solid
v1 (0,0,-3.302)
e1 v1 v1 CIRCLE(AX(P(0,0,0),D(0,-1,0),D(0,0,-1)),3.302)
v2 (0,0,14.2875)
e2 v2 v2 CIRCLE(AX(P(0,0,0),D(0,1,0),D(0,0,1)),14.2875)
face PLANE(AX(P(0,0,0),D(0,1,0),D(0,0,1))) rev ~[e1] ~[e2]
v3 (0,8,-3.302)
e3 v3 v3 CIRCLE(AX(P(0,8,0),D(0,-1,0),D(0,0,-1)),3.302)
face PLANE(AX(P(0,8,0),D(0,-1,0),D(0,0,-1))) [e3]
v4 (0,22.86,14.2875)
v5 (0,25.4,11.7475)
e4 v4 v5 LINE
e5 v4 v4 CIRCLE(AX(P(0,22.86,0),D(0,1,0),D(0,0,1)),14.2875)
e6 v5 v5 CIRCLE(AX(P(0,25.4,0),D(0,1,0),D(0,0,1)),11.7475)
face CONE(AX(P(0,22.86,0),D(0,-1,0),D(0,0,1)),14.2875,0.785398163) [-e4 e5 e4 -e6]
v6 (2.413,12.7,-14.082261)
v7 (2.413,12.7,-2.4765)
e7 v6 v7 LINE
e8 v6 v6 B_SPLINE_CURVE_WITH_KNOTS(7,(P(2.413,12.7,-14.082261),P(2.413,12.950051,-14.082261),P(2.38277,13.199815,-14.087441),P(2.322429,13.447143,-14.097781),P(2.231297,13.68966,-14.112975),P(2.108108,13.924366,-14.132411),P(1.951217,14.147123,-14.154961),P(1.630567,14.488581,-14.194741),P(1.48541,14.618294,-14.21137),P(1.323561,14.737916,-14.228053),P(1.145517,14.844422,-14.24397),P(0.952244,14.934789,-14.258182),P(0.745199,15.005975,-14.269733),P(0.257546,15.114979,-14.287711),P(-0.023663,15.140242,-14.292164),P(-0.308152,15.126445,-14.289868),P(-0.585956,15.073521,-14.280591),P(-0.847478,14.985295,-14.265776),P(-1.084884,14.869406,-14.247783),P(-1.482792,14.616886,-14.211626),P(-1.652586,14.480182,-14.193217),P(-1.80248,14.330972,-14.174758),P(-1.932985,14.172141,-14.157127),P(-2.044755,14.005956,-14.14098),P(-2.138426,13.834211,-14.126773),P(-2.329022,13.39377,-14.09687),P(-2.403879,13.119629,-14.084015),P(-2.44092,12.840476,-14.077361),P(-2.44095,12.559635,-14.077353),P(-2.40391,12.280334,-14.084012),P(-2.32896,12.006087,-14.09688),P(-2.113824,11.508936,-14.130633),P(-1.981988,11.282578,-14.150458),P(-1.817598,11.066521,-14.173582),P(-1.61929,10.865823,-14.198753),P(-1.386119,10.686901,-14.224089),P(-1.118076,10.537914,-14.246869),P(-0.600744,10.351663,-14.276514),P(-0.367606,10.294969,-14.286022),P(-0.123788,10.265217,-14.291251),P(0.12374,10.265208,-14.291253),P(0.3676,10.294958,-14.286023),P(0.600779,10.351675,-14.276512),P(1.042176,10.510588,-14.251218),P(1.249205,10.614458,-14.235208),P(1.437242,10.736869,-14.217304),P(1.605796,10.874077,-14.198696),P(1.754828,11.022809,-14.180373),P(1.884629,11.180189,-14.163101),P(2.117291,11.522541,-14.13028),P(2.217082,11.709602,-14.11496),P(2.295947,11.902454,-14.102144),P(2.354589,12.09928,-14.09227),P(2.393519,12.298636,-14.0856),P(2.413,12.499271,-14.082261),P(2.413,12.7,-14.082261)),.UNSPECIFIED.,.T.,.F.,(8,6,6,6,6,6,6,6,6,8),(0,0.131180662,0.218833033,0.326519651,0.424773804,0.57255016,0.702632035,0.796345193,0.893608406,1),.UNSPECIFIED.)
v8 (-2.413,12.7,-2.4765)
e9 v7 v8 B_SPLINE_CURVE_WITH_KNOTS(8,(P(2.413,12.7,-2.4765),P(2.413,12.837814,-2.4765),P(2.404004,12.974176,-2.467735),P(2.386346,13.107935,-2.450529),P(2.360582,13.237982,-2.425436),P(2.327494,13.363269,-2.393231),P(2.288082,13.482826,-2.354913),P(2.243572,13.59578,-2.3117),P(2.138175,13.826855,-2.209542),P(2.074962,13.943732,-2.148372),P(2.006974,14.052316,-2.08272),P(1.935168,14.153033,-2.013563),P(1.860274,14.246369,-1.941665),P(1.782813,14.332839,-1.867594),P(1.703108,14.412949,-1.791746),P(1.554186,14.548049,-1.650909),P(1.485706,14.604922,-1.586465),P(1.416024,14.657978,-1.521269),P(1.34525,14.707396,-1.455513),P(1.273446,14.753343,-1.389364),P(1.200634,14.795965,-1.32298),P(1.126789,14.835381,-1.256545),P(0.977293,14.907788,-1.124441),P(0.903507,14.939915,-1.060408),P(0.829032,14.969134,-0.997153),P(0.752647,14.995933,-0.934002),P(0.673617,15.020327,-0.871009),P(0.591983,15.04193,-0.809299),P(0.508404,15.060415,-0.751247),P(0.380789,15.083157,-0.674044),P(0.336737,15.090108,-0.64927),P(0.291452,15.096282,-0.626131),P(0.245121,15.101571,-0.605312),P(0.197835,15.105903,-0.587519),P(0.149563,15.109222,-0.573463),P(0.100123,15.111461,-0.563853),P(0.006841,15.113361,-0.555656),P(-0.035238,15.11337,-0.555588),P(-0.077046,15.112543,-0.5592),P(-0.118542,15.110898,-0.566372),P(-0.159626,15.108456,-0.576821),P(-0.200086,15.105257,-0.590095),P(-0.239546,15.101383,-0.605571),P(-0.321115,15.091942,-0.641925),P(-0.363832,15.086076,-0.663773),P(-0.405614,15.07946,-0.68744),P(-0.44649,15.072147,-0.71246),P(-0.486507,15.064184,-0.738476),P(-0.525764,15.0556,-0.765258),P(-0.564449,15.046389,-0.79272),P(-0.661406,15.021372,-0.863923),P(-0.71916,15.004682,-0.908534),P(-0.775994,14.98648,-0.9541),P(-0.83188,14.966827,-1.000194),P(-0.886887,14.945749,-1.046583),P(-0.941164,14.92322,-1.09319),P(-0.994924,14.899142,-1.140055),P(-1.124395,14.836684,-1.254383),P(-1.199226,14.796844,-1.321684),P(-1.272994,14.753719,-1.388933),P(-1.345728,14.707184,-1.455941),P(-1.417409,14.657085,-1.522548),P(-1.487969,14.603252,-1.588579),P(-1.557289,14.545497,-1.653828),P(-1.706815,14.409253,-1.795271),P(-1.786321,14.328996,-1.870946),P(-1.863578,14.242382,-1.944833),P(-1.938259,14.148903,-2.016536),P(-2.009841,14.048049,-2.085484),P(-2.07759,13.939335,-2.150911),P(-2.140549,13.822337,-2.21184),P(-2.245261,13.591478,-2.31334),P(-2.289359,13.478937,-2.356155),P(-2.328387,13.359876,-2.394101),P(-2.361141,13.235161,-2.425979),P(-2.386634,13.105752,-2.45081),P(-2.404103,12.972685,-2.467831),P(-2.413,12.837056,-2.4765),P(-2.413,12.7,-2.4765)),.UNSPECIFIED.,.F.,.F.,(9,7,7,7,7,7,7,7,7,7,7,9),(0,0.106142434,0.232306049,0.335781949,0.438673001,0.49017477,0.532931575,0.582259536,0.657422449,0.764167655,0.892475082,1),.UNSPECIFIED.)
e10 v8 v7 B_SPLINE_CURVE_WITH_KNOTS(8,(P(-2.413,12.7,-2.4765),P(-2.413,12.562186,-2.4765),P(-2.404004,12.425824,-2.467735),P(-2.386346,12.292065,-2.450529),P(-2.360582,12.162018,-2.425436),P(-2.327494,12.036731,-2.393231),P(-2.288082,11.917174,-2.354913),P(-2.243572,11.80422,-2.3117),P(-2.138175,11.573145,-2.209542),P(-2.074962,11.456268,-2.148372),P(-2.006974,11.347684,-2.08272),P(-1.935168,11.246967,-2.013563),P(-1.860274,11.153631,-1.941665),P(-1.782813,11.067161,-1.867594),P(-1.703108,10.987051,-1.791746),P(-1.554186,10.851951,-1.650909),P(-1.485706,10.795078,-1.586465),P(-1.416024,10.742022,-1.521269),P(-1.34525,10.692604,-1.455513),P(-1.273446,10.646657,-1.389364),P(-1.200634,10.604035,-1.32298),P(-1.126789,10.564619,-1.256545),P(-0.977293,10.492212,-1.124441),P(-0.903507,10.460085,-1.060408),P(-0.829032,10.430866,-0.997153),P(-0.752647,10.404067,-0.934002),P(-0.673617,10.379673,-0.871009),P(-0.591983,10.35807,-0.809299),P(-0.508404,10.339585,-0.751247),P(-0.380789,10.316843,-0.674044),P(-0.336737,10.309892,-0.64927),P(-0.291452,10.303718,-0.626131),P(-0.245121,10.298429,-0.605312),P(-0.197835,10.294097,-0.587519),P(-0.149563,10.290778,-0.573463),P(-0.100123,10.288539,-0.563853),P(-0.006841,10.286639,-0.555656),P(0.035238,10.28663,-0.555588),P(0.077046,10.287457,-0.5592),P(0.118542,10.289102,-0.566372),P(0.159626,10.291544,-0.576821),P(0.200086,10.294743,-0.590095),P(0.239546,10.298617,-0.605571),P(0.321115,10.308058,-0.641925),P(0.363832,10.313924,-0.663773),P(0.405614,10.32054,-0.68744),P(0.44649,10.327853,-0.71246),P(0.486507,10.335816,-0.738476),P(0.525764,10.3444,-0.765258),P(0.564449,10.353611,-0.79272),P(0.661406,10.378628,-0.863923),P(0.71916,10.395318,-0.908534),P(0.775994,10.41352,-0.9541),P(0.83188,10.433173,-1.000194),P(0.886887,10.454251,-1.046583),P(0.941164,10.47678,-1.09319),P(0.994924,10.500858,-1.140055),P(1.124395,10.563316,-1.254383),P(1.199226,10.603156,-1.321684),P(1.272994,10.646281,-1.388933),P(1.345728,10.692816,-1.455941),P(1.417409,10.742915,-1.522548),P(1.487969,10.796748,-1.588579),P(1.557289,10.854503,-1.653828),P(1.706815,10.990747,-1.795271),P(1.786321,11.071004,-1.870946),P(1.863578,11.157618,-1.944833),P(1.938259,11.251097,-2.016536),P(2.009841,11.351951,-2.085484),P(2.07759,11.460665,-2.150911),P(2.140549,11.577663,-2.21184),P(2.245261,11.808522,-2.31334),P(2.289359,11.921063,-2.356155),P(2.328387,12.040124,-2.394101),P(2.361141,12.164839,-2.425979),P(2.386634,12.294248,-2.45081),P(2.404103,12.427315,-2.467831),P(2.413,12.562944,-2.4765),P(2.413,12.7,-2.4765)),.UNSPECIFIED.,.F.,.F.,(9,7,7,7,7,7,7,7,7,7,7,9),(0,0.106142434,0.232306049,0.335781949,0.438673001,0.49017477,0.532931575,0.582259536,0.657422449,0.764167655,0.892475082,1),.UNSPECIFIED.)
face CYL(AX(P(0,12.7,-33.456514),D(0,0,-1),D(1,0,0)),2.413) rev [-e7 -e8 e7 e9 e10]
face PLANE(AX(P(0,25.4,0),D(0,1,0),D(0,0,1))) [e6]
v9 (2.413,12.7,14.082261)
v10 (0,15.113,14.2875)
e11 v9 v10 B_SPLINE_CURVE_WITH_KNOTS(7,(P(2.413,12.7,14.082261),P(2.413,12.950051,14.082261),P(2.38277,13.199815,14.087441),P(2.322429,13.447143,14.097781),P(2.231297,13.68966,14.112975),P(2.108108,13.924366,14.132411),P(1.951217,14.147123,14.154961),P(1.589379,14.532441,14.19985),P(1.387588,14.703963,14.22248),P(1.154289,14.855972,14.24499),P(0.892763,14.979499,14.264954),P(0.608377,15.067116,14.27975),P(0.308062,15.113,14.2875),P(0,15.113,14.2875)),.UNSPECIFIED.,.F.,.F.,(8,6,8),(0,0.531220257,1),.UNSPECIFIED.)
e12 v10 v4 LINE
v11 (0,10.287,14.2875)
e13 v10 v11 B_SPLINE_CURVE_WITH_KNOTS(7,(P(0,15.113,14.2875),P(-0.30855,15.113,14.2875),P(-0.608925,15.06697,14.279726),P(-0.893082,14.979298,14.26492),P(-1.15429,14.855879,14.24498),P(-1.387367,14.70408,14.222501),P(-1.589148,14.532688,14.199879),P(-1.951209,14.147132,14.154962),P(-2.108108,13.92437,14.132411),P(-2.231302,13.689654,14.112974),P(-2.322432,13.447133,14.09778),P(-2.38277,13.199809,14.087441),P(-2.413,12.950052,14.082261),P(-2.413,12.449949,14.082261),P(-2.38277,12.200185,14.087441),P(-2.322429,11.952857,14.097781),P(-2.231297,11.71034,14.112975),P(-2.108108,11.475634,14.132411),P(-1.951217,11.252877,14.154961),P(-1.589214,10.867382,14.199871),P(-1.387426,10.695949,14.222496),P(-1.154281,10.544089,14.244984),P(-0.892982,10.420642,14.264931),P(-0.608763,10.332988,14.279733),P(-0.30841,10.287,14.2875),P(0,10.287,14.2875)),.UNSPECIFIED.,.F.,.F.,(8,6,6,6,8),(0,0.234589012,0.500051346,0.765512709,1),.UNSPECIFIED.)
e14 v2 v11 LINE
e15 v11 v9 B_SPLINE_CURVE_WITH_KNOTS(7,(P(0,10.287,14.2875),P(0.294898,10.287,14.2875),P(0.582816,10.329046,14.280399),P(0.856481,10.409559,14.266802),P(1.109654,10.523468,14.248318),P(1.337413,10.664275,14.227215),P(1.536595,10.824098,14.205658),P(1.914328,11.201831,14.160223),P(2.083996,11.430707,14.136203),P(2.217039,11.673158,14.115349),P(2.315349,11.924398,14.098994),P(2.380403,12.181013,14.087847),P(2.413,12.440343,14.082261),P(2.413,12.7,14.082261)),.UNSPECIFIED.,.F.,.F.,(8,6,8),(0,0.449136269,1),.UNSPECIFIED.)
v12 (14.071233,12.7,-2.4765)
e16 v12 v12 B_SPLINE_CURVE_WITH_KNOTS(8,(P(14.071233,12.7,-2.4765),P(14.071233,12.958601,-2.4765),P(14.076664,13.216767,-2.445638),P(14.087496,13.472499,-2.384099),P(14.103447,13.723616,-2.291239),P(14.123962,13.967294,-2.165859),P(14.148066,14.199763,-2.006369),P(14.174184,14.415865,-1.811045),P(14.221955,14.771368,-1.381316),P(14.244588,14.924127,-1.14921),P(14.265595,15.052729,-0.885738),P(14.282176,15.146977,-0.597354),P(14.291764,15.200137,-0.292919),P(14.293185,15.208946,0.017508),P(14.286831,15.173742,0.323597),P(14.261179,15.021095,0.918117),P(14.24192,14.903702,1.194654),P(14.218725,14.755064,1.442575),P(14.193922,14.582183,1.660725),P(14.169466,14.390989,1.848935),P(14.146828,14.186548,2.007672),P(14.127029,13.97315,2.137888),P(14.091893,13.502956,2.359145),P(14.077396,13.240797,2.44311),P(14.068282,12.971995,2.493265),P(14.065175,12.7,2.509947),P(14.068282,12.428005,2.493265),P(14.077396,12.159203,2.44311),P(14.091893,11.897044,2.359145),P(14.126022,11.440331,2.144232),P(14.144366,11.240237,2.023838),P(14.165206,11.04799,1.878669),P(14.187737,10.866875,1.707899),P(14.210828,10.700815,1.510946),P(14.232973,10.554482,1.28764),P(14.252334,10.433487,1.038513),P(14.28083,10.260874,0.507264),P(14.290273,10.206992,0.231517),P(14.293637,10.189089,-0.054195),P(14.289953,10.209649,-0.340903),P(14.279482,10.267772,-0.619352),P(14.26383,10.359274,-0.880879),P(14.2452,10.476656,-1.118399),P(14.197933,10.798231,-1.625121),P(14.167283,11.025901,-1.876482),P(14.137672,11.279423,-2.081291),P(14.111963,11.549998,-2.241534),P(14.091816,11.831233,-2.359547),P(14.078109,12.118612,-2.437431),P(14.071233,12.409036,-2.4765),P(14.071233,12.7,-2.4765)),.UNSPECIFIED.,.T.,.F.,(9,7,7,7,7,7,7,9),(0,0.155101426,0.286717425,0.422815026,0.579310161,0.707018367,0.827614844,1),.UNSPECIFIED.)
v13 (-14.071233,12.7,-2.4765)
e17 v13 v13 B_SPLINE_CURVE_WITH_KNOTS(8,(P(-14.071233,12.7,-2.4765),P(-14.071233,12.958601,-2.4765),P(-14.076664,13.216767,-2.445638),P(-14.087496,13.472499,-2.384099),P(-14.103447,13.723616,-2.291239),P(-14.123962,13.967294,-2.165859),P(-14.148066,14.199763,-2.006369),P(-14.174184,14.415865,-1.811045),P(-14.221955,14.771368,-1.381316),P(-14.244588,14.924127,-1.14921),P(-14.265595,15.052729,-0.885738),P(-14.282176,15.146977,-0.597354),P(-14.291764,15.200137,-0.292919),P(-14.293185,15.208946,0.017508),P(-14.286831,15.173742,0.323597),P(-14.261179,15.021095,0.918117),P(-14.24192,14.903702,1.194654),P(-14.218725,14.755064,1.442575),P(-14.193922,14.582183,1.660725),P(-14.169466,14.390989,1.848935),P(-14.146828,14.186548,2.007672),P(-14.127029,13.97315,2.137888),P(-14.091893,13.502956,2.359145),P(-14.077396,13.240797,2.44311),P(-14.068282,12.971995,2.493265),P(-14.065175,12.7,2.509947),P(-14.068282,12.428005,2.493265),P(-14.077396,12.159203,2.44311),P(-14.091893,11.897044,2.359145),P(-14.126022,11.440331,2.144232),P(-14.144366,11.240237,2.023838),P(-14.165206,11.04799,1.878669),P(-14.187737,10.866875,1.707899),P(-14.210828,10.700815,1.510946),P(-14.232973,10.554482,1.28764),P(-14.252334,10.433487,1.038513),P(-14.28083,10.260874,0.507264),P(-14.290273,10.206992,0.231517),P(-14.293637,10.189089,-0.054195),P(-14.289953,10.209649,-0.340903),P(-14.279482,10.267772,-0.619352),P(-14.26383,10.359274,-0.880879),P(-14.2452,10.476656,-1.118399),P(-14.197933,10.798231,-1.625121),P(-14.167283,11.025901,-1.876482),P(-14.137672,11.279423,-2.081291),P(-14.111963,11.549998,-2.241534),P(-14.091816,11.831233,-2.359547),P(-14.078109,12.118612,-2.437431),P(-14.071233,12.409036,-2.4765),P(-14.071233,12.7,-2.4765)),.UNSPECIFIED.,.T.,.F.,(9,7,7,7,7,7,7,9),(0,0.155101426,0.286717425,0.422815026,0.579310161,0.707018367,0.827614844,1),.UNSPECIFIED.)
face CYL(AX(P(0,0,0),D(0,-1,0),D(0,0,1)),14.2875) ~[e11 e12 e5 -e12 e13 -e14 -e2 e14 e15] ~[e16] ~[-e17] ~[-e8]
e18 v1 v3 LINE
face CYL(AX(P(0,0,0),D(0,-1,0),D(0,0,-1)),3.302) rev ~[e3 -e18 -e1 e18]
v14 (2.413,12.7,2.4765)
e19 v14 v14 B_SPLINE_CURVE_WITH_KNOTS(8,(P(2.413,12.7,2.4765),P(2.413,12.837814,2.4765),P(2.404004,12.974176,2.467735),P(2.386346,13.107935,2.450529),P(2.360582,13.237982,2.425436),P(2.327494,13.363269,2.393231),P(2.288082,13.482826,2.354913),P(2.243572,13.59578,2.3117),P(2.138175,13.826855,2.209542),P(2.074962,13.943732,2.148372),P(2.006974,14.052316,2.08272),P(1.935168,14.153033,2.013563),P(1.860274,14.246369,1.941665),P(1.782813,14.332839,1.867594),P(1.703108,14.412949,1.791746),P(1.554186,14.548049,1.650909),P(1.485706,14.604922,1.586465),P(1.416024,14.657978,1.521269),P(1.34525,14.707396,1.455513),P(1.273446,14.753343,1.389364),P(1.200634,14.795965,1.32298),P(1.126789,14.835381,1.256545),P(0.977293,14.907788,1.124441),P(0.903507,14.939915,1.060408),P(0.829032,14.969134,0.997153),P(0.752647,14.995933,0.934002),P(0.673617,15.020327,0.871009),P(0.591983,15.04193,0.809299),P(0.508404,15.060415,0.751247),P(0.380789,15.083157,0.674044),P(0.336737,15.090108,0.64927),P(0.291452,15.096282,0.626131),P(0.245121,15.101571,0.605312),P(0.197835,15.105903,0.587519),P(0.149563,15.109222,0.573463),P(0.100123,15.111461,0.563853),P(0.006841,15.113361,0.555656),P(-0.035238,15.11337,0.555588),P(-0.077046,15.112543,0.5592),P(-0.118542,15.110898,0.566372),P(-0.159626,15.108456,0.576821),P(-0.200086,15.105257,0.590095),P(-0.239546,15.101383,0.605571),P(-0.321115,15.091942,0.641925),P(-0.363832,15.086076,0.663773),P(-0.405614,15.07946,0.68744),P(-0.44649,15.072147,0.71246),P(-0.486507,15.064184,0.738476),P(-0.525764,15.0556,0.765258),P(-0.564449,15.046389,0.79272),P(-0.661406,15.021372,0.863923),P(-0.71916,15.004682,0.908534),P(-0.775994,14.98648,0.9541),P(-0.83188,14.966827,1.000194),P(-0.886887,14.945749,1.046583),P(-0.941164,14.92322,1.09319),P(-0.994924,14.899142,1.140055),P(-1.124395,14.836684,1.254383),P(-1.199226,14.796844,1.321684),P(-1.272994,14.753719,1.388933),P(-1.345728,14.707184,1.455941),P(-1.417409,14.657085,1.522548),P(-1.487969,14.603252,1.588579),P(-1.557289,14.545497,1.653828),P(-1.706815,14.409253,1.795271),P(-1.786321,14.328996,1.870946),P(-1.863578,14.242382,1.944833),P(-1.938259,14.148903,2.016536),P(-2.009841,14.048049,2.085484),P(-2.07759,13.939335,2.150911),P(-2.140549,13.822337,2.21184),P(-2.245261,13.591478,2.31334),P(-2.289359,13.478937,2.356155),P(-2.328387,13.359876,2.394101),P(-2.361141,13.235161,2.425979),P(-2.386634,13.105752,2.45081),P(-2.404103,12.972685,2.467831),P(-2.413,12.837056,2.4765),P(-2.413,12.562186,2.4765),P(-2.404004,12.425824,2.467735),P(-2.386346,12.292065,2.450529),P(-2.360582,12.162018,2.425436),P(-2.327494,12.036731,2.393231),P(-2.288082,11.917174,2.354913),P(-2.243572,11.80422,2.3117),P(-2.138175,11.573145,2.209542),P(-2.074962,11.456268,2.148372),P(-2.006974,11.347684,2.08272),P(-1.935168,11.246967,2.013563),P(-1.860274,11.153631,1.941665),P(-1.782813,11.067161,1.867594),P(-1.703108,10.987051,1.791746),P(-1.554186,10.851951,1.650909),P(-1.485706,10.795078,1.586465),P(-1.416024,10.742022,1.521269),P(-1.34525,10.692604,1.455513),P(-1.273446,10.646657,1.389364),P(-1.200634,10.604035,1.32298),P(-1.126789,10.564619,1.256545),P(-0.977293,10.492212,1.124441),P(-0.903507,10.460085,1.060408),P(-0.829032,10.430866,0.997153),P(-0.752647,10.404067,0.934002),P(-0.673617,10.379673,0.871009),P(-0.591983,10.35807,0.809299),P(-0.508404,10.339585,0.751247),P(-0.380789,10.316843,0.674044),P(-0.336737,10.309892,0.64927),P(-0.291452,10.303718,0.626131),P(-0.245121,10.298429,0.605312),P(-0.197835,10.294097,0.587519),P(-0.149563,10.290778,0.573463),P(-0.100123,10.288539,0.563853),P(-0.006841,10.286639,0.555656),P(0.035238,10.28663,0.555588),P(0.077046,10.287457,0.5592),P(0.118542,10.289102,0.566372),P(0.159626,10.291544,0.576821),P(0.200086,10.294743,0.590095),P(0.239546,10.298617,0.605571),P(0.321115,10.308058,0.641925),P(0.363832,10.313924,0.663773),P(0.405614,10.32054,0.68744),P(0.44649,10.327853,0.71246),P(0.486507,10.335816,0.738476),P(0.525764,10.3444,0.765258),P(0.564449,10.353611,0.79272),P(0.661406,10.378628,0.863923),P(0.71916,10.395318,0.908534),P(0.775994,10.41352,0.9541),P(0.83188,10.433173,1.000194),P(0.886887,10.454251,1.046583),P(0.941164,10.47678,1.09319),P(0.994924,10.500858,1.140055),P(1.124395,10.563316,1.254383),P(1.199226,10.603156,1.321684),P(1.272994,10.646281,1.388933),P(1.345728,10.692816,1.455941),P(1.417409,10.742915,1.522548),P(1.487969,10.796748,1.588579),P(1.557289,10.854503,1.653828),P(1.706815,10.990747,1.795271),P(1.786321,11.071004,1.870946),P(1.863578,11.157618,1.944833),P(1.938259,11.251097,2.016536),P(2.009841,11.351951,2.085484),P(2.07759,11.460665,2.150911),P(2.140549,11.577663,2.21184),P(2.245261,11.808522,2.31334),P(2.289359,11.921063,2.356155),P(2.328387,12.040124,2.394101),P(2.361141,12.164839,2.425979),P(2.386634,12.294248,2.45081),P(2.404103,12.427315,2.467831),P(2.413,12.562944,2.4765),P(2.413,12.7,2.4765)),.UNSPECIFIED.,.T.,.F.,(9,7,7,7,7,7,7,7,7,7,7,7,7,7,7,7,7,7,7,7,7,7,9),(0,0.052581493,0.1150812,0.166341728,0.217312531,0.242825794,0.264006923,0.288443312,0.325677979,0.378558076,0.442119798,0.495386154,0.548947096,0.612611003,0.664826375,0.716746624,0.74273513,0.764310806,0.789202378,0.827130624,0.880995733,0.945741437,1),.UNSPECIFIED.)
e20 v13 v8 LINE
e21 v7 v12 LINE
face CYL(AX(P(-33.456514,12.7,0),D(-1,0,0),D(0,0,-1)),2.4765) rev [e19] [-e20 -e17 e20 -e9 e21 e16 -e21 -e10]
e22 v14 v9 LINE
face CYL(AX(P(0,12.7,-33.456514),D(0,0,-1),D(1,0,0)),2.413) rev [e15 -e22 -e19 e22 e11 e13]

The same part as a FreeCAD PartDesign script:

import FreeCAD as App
import Part
import Sketcher

V = App.Vector
Q = App.Units.Quantity


def edges_at(feature, points):
    """Names of the edges that pass closest to the given points."""
    edges = feature.Shape.Edges
    near = lambda p: min(range(len(edges)), key=lambda i: edges[i].distToShape(Part.Vertex(*p))[0])
    return sorted({f"Edge{near(p) + 1}" for p in points})

doc = App.newDocument("Part")
body = doc.addObject("PartDesign::Body", "Body")

# Sketch on XZ plane
sketch1 = body.newObject("Sketcher::SketchObject", "Sketch")
sketch1.AttachmentSupport = (doc.getObject("XZ_Plane"), [""])
sketch1.MapMode = "FlatFace"
sketch1.addGeometry(Part.Circle(V(0, 0, 0), V(0, 0, 1), 14), False)
sketch1.addConstraint(Sketcher.Constraint("Coincident", 0, 3, -1, 1))
sketch1.addConstraint(Sketcher.Constraint("Diameter", 0, Q("1.125 in")))
pad1 = body.newObject("PartDesign::Pad", "Pad")
pad1.Profile = sketch1
pad1.Length = Q("1 in")
pad1.Reversed = True

# Sketch on XZ plane
sketch2 = body.newObject("Sketcher::SketchObject", "Sketch001")
sketch2.AttachmentSupport = (doc.getObject("XZ_Plane"), [""])
sketch2.MapMode = "FlatFace"
sketch2.addGeometry(Part.Circle(V(0, 0, 0), V(0, 0, 1), 3.3), False)
sketch2.addConstraint(Sketcher.Constraint("Coincident", 0, 3, -1, 1))
sketch2.addConstraint(Sketcher.Constraint("Diameter", 0, Q("0.26 in")))
pocket1 = body.newObject("PartDesign::Pocket", "Pocket")
pocket1.Profile = sketch2
pocket1.Length = 8

# Sketch on YZ plane
sketch3 = body.newObject("Sketcher::SketchObject", "Sketch002")
sketch3.AttachmentSupport = (doc.getObject("YZ_Plane"), [""])
sketch3.MapMode = "FlatFace"
sketch3.addGeometry(Part.Circle(V(12.7, 0, 0), V(0, 0, 1), 2.5), False)
sketch3.addConstraint(Sketcher.Constraint("PointOnObject", 0, 3, -1))
sketch3.addConstraint(Sketcher.Constraint("Diameter", 0, Q("0.195 in")))
sketch3.addConstraint(Sketcher.Constraint("DistanceX", -1, 1, 0, 3, Q("0.5 in")))
pocket2 = body.newObject("PartDesign::Pocket", "Pocket001")
pocket2.Profile = sketch3
pocket2.Type = "ThroughAll"
pocket2.Midplane = True
doc.recompute()

chamfer = body.newObject("PartDesign::Chamfer", "Chamfer")
chamfer.Base = (pocket2, edges_at(pocket2, [(0, 25.4, -14.287)]))
chamfer.Size = Q("0.1 in")

# Sketch on XY plane
sketch4 = body.newObject("Sketcher::SketchObject", "Sketch003")
sketch4.AttachmentSupport = (doc.getObject("XY_Plane"), [""])
sketch4.MapMode = "FlatFace"
sketch4.addGeometry(Part.Circle(V(0, 12.7, 0), V(0, 0, 1), 2.4), False)
sketch4.addConstraint(Sketcher.Constraint("PointOnObject", 0, 3, -2))
sketch4.addConstraint(Sketcher.Constraint("Diameter", 0, Q("0.19 in")))
sketch4.addConstraint(Sketcher.Constraint("DistanceY", -1, 1, 0, 3, Q("0.5 in")))
pocket3 = body.newObject("PartDesign::Pocket", "Pocket002")
pocket3.Profile = sketch4
pocket3.Type = "ThroughAll"
pocket3.Midplane = True

doc.recompute()
